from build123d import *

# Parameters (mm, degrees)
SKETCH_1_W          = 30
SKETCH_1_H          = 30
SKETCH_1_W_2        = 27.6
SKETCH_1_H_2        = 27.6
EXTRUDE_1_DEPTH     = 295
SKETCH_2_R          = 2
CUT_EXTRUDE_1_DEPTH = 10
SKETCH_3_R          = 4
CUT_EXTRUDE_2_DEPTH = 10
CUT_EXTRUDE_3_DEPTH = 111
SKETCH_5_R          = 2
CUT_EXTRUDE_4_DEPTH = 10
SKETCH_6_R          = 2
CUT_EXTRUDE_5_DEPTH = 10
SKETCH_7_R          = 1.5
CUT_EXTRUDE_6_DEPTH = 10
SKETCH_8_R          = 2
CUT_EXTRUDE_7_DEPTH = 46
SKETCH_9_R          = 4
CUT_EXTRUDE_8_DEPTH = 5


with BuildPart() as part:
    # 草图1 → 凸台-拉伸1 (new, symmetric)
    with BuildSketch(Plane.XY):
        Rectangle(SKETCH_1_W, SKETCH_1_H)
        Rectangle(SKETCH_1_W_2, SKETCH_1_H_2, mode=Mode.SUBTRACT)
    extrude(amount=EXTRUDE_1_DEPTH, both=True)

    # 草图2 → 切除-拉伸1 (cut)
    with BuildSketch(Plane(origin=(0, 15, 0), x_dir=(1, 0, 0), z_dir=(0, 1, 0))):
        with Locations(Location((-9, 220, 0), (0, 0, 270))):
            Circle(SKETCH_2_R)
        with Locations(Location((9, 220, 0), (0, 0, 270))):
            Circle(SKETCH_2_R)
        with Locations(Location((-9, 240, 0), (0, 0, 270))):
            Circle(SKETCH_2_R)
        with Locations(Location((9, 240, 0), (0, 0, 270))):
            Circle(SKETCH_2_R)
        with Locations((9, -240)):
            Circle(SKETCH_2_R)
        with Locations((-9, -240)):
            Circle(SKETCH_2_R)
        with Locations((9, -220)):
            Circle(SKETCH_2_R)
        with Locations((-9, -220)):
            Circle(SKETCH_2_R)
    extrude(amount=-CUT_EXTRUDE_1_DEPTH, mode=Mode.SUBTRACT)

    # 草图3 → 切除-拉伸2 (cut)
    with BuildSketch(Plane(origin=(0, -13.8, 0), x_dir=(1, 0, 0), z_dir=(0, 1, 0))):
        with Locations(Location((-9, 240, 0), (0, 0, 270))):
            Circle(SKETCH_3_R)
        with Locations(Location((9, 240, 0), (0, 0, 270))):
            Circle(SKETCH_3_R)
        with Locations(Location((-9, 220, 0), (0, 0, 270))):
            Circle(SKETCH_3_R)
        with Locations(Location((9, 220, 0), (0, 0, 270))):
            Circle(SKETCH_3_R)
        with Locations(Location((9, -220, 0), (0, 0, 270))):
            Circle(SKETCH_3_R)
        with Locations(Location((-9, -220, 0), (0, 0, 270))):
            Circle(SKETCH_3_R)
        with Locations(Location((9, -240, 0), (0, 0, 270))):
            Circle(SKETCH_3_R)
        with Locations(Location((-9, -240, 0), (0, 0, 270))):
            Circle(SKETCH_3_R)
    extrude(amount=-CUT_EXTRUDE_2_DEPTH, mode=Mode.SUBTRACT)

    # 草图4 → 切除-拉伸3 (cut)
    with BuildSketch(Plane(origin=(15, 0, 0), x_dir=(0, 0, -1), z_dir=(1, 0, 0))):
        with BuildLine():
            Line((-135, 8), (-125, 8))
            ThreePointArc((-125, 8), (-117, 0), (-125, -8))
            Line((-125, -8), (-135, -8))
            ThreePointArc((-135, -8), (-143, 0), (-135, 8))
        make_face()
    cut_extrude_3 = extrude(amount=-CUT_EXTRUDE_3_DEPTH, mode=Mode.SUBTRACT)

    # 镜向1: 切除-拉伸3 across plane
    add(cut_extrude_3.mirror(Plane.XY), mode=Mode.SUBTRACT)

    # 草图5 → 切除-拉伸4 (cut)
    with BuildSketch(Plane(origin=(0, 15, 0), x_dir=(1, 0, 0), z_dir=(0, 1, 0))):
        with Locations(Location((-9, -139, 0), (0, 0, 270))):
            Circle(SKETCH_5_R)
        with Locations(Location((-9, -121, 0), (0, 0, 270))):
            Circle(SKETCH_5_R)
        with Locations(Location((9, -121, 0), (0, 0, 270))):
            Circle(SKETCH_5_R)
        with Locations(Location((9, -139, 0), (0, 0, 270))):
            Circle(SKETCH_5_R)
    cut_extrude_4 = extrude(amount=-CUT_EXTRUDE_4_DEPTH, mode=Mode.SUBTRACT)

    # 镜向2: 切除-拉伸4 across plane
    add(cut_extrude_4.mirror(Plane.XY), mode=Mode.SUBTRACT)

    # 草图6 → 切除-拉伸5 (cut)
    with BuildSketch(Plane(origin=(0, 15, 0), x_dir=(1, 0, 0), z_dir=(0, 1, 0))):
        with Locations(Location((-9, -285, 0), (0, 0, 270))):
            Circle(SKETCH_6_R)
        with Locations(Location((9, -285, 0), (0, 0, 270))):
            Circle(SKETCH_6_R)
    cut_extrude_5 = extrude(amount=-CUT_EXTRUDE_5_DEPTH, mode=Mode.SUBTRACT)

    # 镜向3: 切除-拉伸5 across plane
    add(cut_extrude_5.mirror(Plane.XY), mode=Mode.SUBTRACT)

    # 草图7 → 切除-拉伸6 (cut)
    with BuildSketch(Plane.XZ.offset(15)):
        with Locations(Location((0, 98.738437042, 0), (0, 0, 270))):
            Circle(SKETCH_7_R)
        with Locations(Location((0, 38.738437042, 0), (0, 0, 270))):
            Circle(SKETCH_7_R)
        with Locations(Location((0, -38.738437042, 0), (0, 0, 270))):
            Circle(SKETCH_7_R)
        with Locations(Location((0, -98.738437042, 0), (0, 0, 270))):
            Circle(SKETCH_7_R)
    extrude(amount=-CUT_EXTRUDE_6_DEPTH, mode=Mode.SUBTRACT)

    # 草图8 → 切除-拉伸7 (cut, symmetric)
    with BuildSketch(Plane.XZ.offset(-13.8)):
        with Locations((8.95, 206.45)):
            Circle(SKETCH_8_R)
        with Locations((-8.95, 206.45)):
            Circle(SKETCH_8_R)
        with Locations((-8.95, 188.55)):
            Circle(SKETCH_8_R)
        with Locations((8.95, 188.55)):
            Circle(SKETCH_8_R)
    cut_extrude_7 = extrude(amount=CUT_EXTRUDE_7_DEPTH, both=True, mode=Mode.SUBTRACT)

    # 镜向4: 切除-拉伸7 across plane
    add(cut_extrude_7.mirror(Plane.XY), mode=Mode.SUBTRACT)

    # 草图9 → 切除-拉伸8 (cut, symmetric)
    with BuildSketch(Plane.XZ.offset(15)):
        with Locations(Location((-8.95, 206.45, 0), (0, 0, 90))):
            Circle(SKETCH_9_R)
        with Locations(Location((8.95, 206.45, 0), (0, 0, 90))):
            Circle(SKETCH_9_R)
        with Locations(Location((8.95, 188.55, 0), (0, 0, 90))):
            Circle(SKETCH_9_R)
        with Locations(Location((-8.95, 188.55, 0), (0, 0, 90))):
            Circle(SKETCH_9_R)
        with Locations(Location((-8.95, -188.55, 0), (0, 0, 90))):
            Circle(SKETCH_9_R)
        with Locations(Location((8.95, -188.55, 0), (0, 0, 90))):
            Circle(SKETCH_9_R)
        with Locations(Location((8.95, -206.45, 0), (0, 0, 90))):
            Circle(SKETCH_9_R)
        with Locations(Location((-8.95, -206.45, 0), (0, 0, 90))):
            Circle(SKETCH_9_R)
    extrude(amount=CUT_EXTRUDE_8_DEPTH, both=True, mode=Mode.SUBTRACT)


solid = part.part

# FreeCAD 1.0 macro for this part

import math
import FreeCAD as App
import Part
import Sketcher

V = App.Vector
Q = App.Units.Quantity

doc = App.newDocument("Part")
body = doc.addObject("PartDesign::Body", "Body")

# Sketch on XY plane
sketch1 = body.newObject("Sketcher::SketchObject", "Sketch")
sketch1.AttachmentSupport = (doc.getObject("XY_Plane"), [""])
sketch1.MapMode = "FlatFace"
sketch1.addGeometry([
    Part.LineSegment(V(-15, 15, 0), V(-15, -15, 0)),  # 0
    Part.LineSegment(V(-15, -15, 0), V(15, -15, 0)),  # 1
    Part.LineSegment(V(15, -15, 0), V(15, 15, 0)),  # 2
    Part.LineSegment(V(15, 15, 0), V(-15, 15, 0)),  # 3
    Part.LineSegment(V(14, -14, 0), V(-14, -14, 0)),  # 4
    Part.LineSegment(V(-14, -14, 0), V(-14, 14, 0)),  # 5
    Part.LineSegment(V(-14, 14, 0), V(14, 14, 0)),  # 6
    Part.LineSegment(V(14, 14, 0), V(14, -14, 0)),  # 7
], False)
sketch1.addConstraint([
    Sketcher.Constraint("Coincident", 0, 2, 1, 1),
    Sketcher.Constraint("Coincident", 1, 2, 2, 1),
    Sketcher.Constraint("Coincident", 2, 2, 3, 1),
    Sketcher.Constraint("Coincident", 3, 2, 0, 1),
    Sketcher.Constraint("Coincident", 4, 2, 5, 1),
    Sketcher.Constraint("Coincident", 5, 2, 6, 1),
    Sketcher.Constraint("Coincident", 6, 2, 7, 1),
    Sketcher.Constraint("Coincident", 7, 2, 4, 1),
    Sketcher.Constraint("Vertical", 0),
    Sketcher.Constraint("Horizontal", 1),
    Sketcher.Constraint("Vertical", 2),
    Sketcher.Constraint("Horizontal", 3),
    Sketcher.Constraint("Horizontal", 4),
    Sketcher.Constraint("Vertical", 5),
    Sketcher.Constraint("Horizontal", 6),
    Sketcher.Constraint("Vertical", 7),
    Sketcher.Constraint("Symmetric", 0, 2, 2, 2, -1, 1),
    Sketcher.Constraint("Symmetric", 4, 2, 6, 2, -1, 1),
    Sketcher.Constraint("Equal", 3, 0),
    Sketcher.Constraint("Equal", 6, 5),
    Sketcher.Constraint("DistanceX", 1, 1, 1, 2, Q("30 mm")),
    Sketcher.Constraint("DistanceX", 4, 2, 4, 1, Q("27.6 mm")),
])
pad1 = body.newObject("PartDesign::Pad", "Pad")
pad1.Profile = sketch1
pad1.Length = 590
pad1.Midplane = True

# Sketch on XZ plane
sketch2 = body.newObject("Sketcher::SketchObject", "Sketch001")
sketch2.AttachmentSupport = (doc.getObject("XZ_Plane"), [""])
sketch2.MapMode = "FlatFace"
sketch2.AttachmentOffset = App.Placement(V(0, 0, -15), App.Rotation())
sketch2.addGeometry([
    Part.Circle(V(-9, -220, 0), V(0, 0, 1), 2),  # 0
    Part.Circle(V(9, -220, 0), V(0, 0, 1), 2),  # 1
    Part.Circle(V(-9, -240, 0), V(0, 0, 1), 2),  # 2
    Part.Circle(V(9, -240, 0), V(0, 0, 1), 2),  # 3
    Part.Circle(V(9, 240, 0), V(0, 0, 1), 2),  # 4
    Part.Circle(V(-9, 240, 0), V(0, 0, 1), 2),  # 5
    Part.Circle(V(9, 220, 0), V(0, 0, 1), 2),  # 6
    Part.Circle(V(-9, 220, 0), V(0, 0, 1), 2),  # 7
], False)
sketch2.addConstraint([
    Sketcher.Constraint("Equal", 0, 1),
    Sketcher.Constraint("Equal", 1, 2),
    Sketcher.Constraint("Equal", 2, 3),
    Sketcher.Constraint("Equal", 3, 4),
    Sketcher.Constraint("Equal", 4, 5),
    Sketcher.Constraint("Equal", 5, 6),
    Sketcher.Constraint("Equal", 6, 7),
    Sketcher.Constraint("Symmetric", 2, 3, 4, 3, -1, 1),
    Sketcher.Constraint("Symmetric", 3, 3, 5, 3, -1, 1),
    Sketcher.Constraint("Symmetric", 0, 3, 6, 3, -1, 1),
    Sketcher.Constraint("Symmetric", 1, 3, 7, 3, -1, 1),
    Sketcher.Constraint("Symmetric", 0, 3, 1, 3, -2),
    Sketcher.Constraint("Symmetric", 2, 3, 3, 3, -2),
    Sketcher.Constraint("Vertical", 0, 3, 2, 3),
    Sketcher.Constraint("Diameter", 0, Q("4 mm")),
    Sketcher.Constraint("DistanceX", 0, 3, -1, 1, Q("9 mm")),
    Sketcher.Constraint("DistanceY", 0, 3, -1, 1, Q("220 mm")),
    Sketcher.Constraint("DistanceY", 2, 3, -1, 1, Q("240 mm")),
])
pocket1 = body.newObject("PartDesign::Pocket", "Pocket")
pocket1.Profile = sketch2
pocket1.Length = 10
pocket1.Reversed = True

# Sketch on XZ plane
sketch3 = body.newObject("Sketcher::SketchObject", "Sketch002")
sketch3.AttachmentSupport = (doc.getObject("XZ_Plane"), [""])
sketch3.MapMode = "FlatFace"
sketch3.AttachmentOffset = App.Placement(V(0, 0, 13.8), App.Rotation())
sketch3.addGeometry([
    Part.Circle(V(-9, -240, 0), V(0, 0, 1), 4),  # 0
    Part.Circle(V(9, -240, 0), V(0, 0, 1), 4),  # 1
    Part.Circle(V(-9, -220, 0), V(0, 0, 1), 4),  # 2
    Part.Circle(V(9, -220, 0), V(0, 0, 1), 4),  # 3
    Part.Circle(V(9, 220, 0), V(0, 0, 1), 4),  # 4
    Part.Circle(V(-9, 220, 0), V(0, 0, 1), 4),  # 5
    Part.Circle(V(9, 240, 0), V(0, 0, 1), 4),  # 6
    Part.Circle(V(-9, 240, 0), V(0, 0, 1), 4),  # 7
], False)
sketch3.addConstraint([
    Sketcher.Constraint("Equal", 0, 1),
    Sketcher.Constraint("Equal", 1, 2),
    Sketcher.Constraint("Equal", 2, 3),
    Sketcher.Constraint("Equal", 3, 4),
    Sketcher.Constraint("Equal", 4, 5),
    Sketcher.Constraint("Equal", 5, 6),
    Sketcher.Constraint("Equal", 6, 7),
    Sketcher.Constraint("Symmetric", 2, 3, 4, 3, -1, 1),
    Sketcher.Constraint("Symmetric", 3, 3, 5, 3, -1, 1),
    Sketcher.Constraint("Symmetric", 0, 3, 6, 3, -1, 1),
    Sketcher.Constraint("Symmetric", 1, 3, 7, 3, -1, 1),
    Sketcher.Constraint("Symmetric", 0, 3, 1, 3, -2),
    Sketcher.Constraint("Symmetric", 2, 3, 3, 3, -2),
    Sketcher.Constraint("Vertical", 0, 3, 2, 3),
    Sketcher.Constraint("Diameter", 0, Q("8 mm")),
    Sketcher.Constraint("DistanceX", 0, 3, -1, 1, Q("9 mm")),
    Sketcher.Constraint("DistanceY", 0, 3, -1, 1, Q("240 mm")),
    Sketcher.Constraint("DistanceY", 2, 3, -1, 1, Q("220 mm")),
])
pocket2 = body.newObject("PartDesign::Pocket", "Pocket001")
pocket2.Profile = sketch3
pocket2.Length = 10
pocket2.Reversed = True

# Sketch on YZ plane
sketch4 = body.newObject("Sketcher::SketchObject", "Sketch003")
sketch4.AttachmentSupport = (doc.getObject("YZ_Plane"), [""])
sketch4.MapMode = "FlatFace"
sketch4.AttachmentOffset = App.Placement(V(0, 0, 15), App.Rotation())
sketch4.addGeometry([
    Part.LineSegment(V(8, 125, 0), V(8, 135, 0)),
    Part.ArcOfCircle(Part.Circle(V(0, 135, 0), V(0, 0, 1), 8), math.radians(0), math.radians(180)),
    Part.LineSegment(V(-8, 135, 0), V(-8, 125, 0)),
    Part.ArcOfCircle(Part.Circle(V(0, 125, 0), V(0, 0, 1), 8), math.radians(180), math.radians(360)),
], False)
sketch4.addConstraint([
    Sketcher.Constraint("Tangent", 0, 2, 1, 1),
    Sketcher.Constraint("Tangent", 1, 2, 2, 1),
    Sketcher.Constraint("Tangent", 2, 2, 3, 1),
    Sketcher.Constraint("Tangent", 3, 2, 0, 1),
    Sketcher.Constraint("Vertical", 0),
    Sketcher.Constraint("Vertical", 2),
    Sketcher.Constraint("PointOnObject", 1, 3, -2),
    Sketcher.Constraint("Radius", 1, Q("8 mm")),
    Sketcher.Constraint("DistanceY", 0, 1, 0, 2, Q("10 mm")),
    Sketcher.Constraint("DistanceY", -1, 1, 1, 3, Q("135 mm")),
])
pocket3 = body.newObject("PartDesign::Pocket", "Pocket002")
pocket3.Profile = sketch4
pocket3.Length = 111
doc.recompute()

mirrored = body.newObject("PartDesign::Mirrored", "Mirrored")
mirrored.Originals = [pocket3]
mirrored.MirrorPlane = (doc.getObject("XY_Plane"), [""])
body.Tip = mirrored

# Sketch on XZ plane
sketch5 = body.newObject("Sketcher::SketchObject", "Sketch004")
sketch5.AttachmentSupport = (doc.getObject("XZ_Plane"), [""])
sketch5.MapMode = "FlatFace"
sketch5.AttachmentOffset = App.Placement(V(0, 0, -15), App.Rotation())
sketch5.addGeometry([
    Part.Circle(V(-9, 139, 0), V(0, 0, 1), 2),
    Part.Circle(V(-9, 121, 0), V(0, 0, 1), 2),
    Part.Circle(V(9, 121, 0), V(0, 0, 1), 2),
    Part.Circle(V(9, 139, 0), V(0, 0, 1), 2),
], False)
sketch5.addConstraint([
    Sketcher.Constraint("Equal", 0, 1),
    Sketcher.Constraint("Equal", 1, 2),
    Sketcher.Constraint("Equal", 2, 3),
    Sketcher.Constraint("Symmetric", 1, 3, 2, 3, -2),
    Sketcher.Constraint("Symmetric", 0, 3, 3, 3, -2),
    Sketcher.Constraint("Vertical", 0, 3, 1, 3),
    Sketcher.Constraint("Diameter", 0, Q("4 mm")),
    Sketcher.Constraint("DistanceX", 0, 3, -1, 1, Q("9 mm")),
    Sketcher.Constraint("DistanceY", -1, 1, 0, 3, Q("139 mm")),
    Sketcher.Constraint("DistanceY", -1, 1, 1, 3, Q("121 mm")),
])
pocket4 = body.newObject("PartDesign::Pocket", "Pocket003")
pocket4.Profile = sketch5
pocket4.Length = 10
pocket4.Reversed = True
doc.recompute()

mirrored2 = body.newObject("PartDesign::Mirrored", "Mirrored001")
mirrored2.Originals = [pocket4]
mirrored2.MirrorPlane = (doc.getObject("XY_Plane"), [""])
body.Tip = mirrored2

# Sketch on XZ plane
sketch6 = body.newObject("Sketcher::SketchObject", "Sketch005")
sketch6.AttachmentSupport = (doc.getObject("XZ_Plane"), [""])
sketch6.MapMode = "FlatFace"
sketch6.AttachmentOffset = App.Placement(V(0, 0, -15), App.Rotation())
sketch6.addGeometry([
    Part.Circle(V(-9, 285, 0), V(0, 0, 1), 2),
    Part.Circle(V(9, 285, 0), V(0, 0, 1), 2),
], False)
sketch6.addConstraint([
    Sketcher.Constraint("Equal", 0, 1),
    Sketcher.Constraint("Symmetric", 0, 3, 1, 3, -2),
    Sketcher.Constraint("Diameter", 0, Q("4 mm")),
    Sketcher.Constraint("DistanceX", 0, 3, -1, 1, Q("9 mm")),
    Sketcher.Constraint("DistanceY", -1, 1, 0, 3, Q("285 mm")),
])
pocket5 = body.newObject("PartDesign::Pocket", "Pocket004")
pocket5.Profile = sketch6
pocket5.Length = 10
pocket5.Reversed = True
doc.recompute()

mirrored3 = body.newObject("PartDesign::Mirrored", "Mirrored002")
mirrored3.Originals = [pocket5]
mirrored3.MirrorPlane = (doc.getObject("XY_Plane"), [""])
body.Tip = mirrored3

# Sketch on XZ plane
sketch7 = body.newObject("Sketcher::SketchObject", "Sketch006")
sketch7.AttachmentSupport = (doc.getObject("XZ_Plane"), [""])
sketch7.MapMode = "FlatFace"
sketch7.AttachmentOffset = App.Placement(V(0, 0, 15), App.Rotation())
sketch7.addGeometry([
    Part.Circle(V(0, 98.7, 0), V(0, 0, 1), 1.5),
    Part.Circle(V(0, 38.7, 0), V(0, 0, 1), 1.5),
    Part.Circle(V(0, -38.7, 0), V(0, 0, 1), 1.5),
    Part.Circle(V(0, -98.7, 0), V(0, 0, 1), 1.5),
], False)
sketch7.addConstraint([
    Sketcher.Constraint("Equal", 0, 1),
    Sketcher.Constraint("Equal", 1, 2),
    Sketcher.Constraint("Equal", 2, 3),
    Sketcher.Constraint("Symmetric", 1, 3, 2, 3, -1, 1),
    Sketcher.Constraint("Symmetric", 0, 3, 3, 3, -1, 1),
    Sketcher.Constraint("PointOnObject", 0, 3, -2),
    Sketcher.Constraint("PointOnObject", 1, 3, -2),
    Sketcher.Constraint("Diameter", 0, Q("3 mm")),
    Sketcher.Constraint("DistanceY", 1, 3, 0, 3, Q("60 mm")),
    Sketcher.Constraint("DistanceY", -1, 1, 0, 3, Q("98.738437 mm")),
])
pocket6 = body.newObject("PartDesign::Pocket", "Pocket005")
pocket6.Profile = sketch7
pocket6.Length = 10

# Sketch on XZ plane
sketch8 = body.newObject("Sketcher::SketchObject", "Sketch007")
sketch8.AttachmentSupport = (doc.getObject("XZ_Plane"), [""])
sketch8.MapMode = "FlatFace"
sketch8.AttachmentOffset = App.Placement(V(0, 0, -13.8), App.Rotation())
sketch8.addGeometry([
    Part.Circle(V(8.9, 206.4, 0), V(0, 0, 1), 2),
    Part.Circle(V(-8.9, 206.4, 0), V(0, 0, 1), 2),
    Part.Circle(V(-8.9, 188.6, 0), V(0, 0, 1), 2),
    Part.Circle(V(8.9, 188.6, 0), V(0, 0, 1), 2),
], False)
sketch8.addConstraint([
    Sketcher.Constraint("Equal", 0, 1),
    Sketcher.Constraint("Equal", 1, 2),
    Sketcher.Constraint("Equal", 2, 3),
    Sketcher.Constraint("Symmetric", 0, 3, 1, 3, -2),
    Sketcher.Constraint("Symmetric", 2, 3, 3, 3, -2),
    Sketcher.Constraint("Vertical", 1, 3, 2, 3),
    Sketcher.Constraint("Diameter", 0, Q("4 mm")),
    Sketcher.Constraint("DistanceX", 1, 3, 0, 3, Q("17.9 mm")),
    Sketcher.Constraint("DistanceY", 2, 3, 1, 3, Q("17.9 mm")),
    Sketcher.Constraint("DistanceY", -1, 1, 0, 3, Q("206.45 mm")),
])
pocket7 = body.newObject("PartDesign::Pocket", "Pocket006")
pocket7.Profile = sketch8
pocket7.Length = 92
pocket7.Midplane = True
doc.recompute()

mirrored4 = body.newObject("PartDesign::Mirrored", "Mirrored003")
mirrored4.Originals = [pocket7]
mirrored4.MirrorPlane = (doc.getObject("XY_Plane"), [""])
body.Tip = mirrored4

# Sketch on XZ plane
sketch9 = body.newObject("Sketcher::SketchObject", "Sketch008")
sketch9.AttachmentSupport = (doc.getObject("XZ_Plane"), [""])
sketch9.MapMode = "FlatFace"
sketch9.AttachmentOffset = App.Placement(V(0, 0, 15), App.Rotation())
sketch9.addGeometry([
    Part.Circle(V(-8.9, 206.4, 0), V(0, 0, 1), 4),  # 0
    Part.Circle(V(8.9, 206.4, 0), V(0, 0, 1), 4),  # 1
    Part.Circle(V(8.9, 188.6, 0), V(0, 0, 1), 4),  # 2
    Part.Circle(V(-8.9, 188.6, 0), V(0, 0, 1), 4),  # 3
    Part.Circle(V(-8.9, -188.6, 0), V(0, 0, 1), 4),  # 4
    Part.Circle(V(8.9, -188.6, 0), V(0, 0, 1), 4),  # 5
    Part.Circle(V(8.9, -206.4, 0), V(0, 0, 1), 4),  # 6
    Part.Circle(V(-8.9, -206.4, 0), V(0, 0, 1), 4),  # 7
], False)
sketch9.addConstraint([
    Sketcher.Constraint("Equal", 0, 1),
    Sketcher.Constraint("Equal", 1, 2),
    Sketcher.Constraint("Equal", 2, 3),
    Sketcher.Constraint("Equal", 3, 4),
    Sketcher.Constraint("Equal", 4, 5),
    Sketcher.Constraint("Equal", 5, 6),
    Sketcher.Constraint("Equal", 6, 7),
    Sketcher.Constraint("Symmetric", 2, 3, 4, 3, -1, 1),
    Sketcher.Constraint("Symmetric", 3, 3, 5, 3, -1, 1),
    Sketcher.Constraint("Symmetric", 0, 3, 6, 3, -1, 1),
    Sketcher.Constraint("Symmetric", 1, 3, 7, 3, -1, 1),
    Sketcher.Constraint("Symmetric", 0, 3, 1, 3, -2),
    Sketcher.Constraint("Symmetric", 2, 3, 3, 3, -2),
    Sketcher.Constraint("Vertical", 1, 3, 2, 3),
    Sketcher.Constraint("Diameter", 0, Q("8 mm")),
    Sketcher.Constraint("DistanceY", 4, 3, 0, 3, Q("395 mm")),
    Sketcher.Constraint("DistanceX", 0, 3, 1, 3, Q("17.9 mm")),
    Sketcher.Constraint("DistanceY", 2, 3, 1, 3, Q("17.9 mm")),
])
pocket8 = body.newObject("PartDesign::Pocket", "Pocket007")
pocket8.Profile = sketch9
pocket8.Length = 10
pocket8.Midplane = True

doc.recompute()
